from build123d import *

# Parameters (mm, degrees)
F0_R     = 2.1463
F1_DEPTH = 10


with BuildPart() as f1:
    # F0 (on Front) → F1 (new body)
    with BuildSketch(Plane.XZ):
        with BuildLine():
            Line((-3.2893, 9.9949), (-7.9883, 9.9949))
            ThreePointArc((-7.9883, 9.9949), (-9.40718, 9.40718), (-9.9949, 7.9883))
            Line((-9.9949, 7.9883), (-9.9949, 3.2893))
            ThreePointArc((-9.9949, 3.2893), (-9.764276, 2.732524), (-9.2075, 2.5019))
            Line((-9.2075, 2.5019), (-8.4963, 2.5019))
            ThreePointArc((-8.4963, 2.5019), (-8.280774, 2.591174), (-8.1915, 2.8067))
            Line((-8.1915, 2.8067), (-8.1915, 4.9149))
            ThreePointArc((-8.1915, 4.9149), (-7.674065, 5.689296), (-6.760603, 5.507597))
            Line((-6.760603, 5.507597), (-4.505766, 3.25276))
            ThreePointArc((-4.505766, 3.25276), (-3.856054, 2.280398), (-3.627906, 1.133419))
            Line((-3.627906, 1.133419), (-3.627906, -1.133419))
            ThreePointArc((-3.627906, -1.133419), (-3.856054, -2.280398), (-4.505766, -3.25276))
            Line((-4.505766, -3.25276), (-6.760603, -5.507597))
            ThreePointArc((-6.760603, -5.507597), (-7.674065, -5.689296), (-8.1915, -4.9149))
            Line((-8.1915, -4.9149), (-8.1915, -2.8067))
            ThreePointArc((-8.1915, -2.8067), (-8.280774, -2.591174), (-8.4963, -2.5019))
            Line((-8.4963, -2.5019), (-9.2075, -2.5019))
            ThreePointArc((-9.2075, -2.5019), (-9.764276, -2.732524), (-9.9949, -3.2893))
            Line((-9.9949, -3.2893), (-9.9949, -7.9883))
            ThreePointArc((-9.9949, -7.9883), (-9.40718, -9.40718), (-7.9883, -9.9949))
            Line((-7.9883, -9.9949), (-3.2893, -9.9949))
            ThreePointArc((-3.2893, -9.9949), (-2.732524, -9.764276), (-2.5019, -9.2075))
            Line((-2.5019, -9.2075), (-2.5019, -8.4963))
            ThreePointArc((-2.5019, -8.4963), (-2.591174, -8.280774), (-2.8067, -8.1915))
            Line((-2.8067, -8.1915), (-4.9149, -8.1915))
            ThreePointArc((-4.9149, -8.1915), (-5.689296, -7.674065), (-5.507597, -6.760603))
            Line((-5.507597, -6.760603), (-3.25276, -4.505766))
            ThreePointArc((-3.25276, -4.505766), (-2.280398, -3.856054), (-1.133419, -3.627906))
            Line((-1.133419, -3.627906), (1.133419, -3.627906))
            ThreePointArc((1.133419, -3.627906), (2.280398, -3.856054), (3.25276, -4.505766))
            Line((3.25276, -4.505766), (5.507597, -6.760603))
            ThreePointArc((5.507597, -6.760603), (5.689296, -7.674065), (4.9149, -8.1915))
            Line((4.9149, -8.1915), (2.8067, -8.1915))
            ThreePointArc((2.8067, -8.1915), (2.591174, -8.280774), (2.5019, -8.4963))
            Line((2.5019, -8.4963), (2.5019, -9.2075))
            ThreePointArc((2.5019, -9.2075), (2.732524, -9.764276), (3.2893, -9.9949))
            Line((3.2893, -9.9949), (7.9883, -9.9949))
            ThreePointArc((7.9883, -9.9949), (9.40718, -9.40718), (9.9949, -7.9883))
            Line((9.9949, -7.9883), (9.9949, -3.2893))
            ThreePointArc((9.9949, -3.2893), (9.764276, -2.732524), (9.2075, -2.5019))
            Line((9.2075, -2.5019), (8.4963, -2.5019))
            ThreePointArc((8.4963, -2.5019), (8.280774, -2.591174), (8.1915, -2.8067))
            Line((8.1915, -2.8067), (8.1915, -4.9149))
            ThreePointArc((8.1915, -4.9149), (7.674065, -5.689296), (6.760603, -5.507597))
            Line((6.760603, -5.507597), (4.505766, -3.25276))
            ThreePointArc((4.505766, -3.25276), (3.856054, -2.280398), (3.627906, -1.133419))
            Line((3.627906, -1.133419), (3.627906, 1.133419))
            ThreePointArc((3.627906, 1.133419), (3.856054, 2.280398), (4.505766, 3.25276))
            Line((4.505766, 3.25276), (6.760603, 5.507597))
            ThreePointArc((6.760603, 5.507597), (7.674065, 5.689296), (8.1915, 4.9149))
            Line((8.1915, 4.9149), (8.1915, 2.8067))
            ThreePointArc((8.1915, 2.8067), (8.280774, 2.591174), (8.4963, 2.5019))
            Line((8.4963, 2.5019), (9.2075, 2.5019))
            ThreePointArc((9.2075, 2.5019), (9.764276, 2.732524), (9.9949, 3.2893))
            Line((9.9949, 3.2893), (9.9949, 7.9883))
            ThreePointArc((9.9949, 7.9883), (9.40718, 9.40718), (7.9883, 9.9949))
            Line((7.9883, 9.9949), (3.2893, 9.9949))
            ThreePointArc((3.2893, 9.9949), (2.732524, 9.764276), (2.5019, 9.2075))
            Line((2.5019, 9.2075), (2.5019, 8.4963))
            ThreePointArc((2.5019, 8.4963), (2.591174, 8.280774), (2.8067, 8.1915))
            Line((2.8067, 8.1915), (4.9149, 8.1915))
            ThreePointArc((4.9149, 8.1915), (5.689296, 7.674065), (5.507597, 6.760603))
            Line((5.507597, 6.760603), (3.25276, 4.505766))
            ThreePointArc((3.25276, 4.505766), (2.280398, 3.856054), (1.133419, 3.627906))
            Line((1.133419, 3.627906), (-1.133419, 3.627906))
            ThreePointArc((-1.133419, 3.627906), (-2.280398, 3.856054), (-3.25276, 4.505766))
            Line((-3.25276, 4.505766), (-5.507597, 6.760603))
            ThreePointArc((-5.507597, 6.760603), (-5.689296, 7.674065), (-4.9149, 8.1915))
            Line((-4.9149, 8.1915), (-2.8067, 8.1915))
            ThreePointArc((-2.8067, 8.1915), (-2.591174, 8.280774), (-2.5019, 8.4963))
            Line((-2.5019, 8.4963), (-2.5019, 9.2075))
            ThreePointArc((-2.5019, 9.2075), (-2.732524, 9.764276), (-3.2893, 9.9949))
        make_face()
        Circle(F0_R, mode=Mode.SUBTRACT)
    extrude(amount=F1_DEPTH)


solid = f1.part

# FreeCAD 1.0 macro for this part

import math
import FreeCAD as App
import Part
import Sketcher

V = App.Vector
Q = App.Units.Quantity

doc = App.newDocument("Part")
body = doc.addObject("PartDesign::Body", "Body")

sketch1 = body.newObject("Sketcher::SketchObject", "Sketch")
sketch1.AttachmentSupport = (doc.getObject("XZ_Plane"), [""])
sketch1.MapMode = "FlatFace"
sketch1.addGeometry(Part.LineSegment(V(-3.2893, 9.9949, 0), V(-7.9883, 9.9949, 0)), False)
sketch1.addGeometry(Part.ArcOfCircle(Part.Circle(V(-7.988298, 7.988298, 0), V(0, 0, 1), 2.006602), math.radians(90.000046), math.radians(179.999954)), False)
sketch1.addGeometry(Part.LineSegment(V(-9.9949, 7.9883, 0), V(-9.9949, 3.2893, 0)), False)
sketch1.addGeometry(Part.ArcOfCircle(Part.Circle(V(-9.2075, 3.2893, 0), V(0, 0, 1), 0.7874), math.radians(179.99997), math.radians(270.00003)), False)
sketch1.addGeometry(Part.LineSegment(V(-9.2075, 2.5019, 0), V(-8.4963, 2.5019, 0)), False)
sketch1.addGeometry(Part.ArcOfCircle(Part.Circle(V(-8.496301, 2.806701, 0), V(0, 0, 1), 0.304801), math.radians(-89.999906), math.radians(-0.000094)), False)
sketch1.addGeometry(Part.LineSegment(V(-8.1915, 2.8067, 0), V(-8.1915, 4.9149, 0)), False)
sketch1.addGeometry(Part.ArcOfCircle(Part.Circle(V(-7.3533, 4.9149, 0), V(0, 0, 1), 0.8382), math.radians(45.000002), math.radians(180.000002)), False)
sketch1.addGeometry(Part.LineSegment(V(-6.760603, 5.507597, 0), V(-4.505766, 3.25276, 0)), False)
sketch1.addGeometry(Part.ArcOfCircle(Part.Circle(V(-6.625103, 1.133421, 0), V(0, 0, 1), 2.997197), math.radians(-0.00003), math.radians(45.000039)), False)
sketch1.addGeometry(Part.LineSegment(V(-3.627906, 1.133419, 0), V(-3.627906, -1.133419, 0)), False)
sketch1.addGeometry(Part.ArcOfCircle(Part.Circle(V(-6.625103, -1.133421, 0), V(0, 0, 1), 2.997197), math.radians(-45.000039), math.radians(0.00003)), False)
sketch1.addGeometry(Part.LineSegment(V(-4.505766, -3.25276, 0), V(-6.760603, -5.507597, 0)), False)
sketch1.addGeometry(Part.ArcOfCircle(Part.Circle(V(-7.3533, -4.9149, 0), V(0, 0, 1), 0.8382), math.radians(179.999998), math.radians(314.999998)), False)
sketch1.addGeometry(Part.LineSegment(V(-8.1915, -4.9149, 0), V(-8.1915, -2.8067, 0)), False)
sketch1.addGeometry(Part.ArcOfCircle(Part.Circle(V(-8.496301, -2.806701, 0), V(0, 0, 1), 0.304801), math.radians(0.000094), math.radians(89.999906)), False)
sketch1.addGeometry(Part.LineSegment(V(-8.4963, -2.5019, 0), V(-9.2075, -2.5019, 0)), False)
sketch1.addGeometry(Part.ArcOfCircle(Part.Circle(V(-9.2075, -3.2893, 0), V(0, 0, 1), 0.7874), math.radians(89.99997), math.radians(180.00003)), False)
sketch1.addGeometry(Part.LineSegment(V(-9.9949, -3.2893, 0), V(-9.9949, -7.9883, 0)), False)
sketch1.addGeometry(Part.ArcOfCircle(Part.Circle(V(-7.988298, -7.988298, 0), V(0, 0, 1), 2.006602), math.radians(-179.999954), math.radians(-90.000046)), False)
sketch1.addGeometry(Part.LineSegment(V(-7.9883, -9.9949, 0), V(-3.2893, -9.9949, 0)), False)
sketch1.addGeometry(Part.ArcOfCircle(Part.Circle(V(-3.2893, -9.2075, 0), V(0, 0, 1), 0.7874), math.radians(-90.00003), math.radians(0.00003)), False)
sketch1.addGeometry(Part.LineSegment(V(-2.5019, -9.2075, 0), V(-2.5019, -8.4963, 0)), False)
sketch1.addGeometry(Part.ArcOfCircle(Part.Circle(V(-2.806701, -8.496301, 0), V(0, 0, 1), 0.304801), math.radians(0.000094), math.radians(89.999906)), False)
sketch1.addGeometry(Part.LineSegment(V(-2.8067, -8.1915, 0), V(-4.9149, -8.1915, 0)), False)
sketch1.addGeometry(Part.ArcOfCircle(Part.Circle(V(-4.9149, -7.3533, 0), V(0, 0, 1), 0.8382), math.radians(135.000002), math.radians(270.000002)), False)
sketch1.addGeometry(Part.LineSegment(V(-5.507597, -6.760603, 0), V(-3.25276, -4.505766, 0)), False)
sketch1.addGeometry(Part.ArcOfCircle(Part.Circle(V(-1.133421, -6.625103, 0), V(0, 0, 1), 2.997197), math.radians(89.99997), math.radians(135.000039)), False)
sketch1.addGeometry(Part.LineSegment(V(-1.133419, -3.627906, 0), V(1.133419, -3.627906, 0)), False)
sketch1.addGeometry(Part.ArcOfCircle(Part.Circle(V(1.133421, -6.625103, 0), V(0, 0, 1), 2.997197), math.radians(44.999961), math.radians(90.00003)), False)
sketch1.addGeometry(Part.LineSegment(V(3.25276, -4.505766, 0), V(5.507597, -6.760603, 0)), False)
sketch1.addGeometry(Part.ArcOfCircle(Part.Circle(V(4.9149, -7.3533, 0), V(0, 0, 1), 0.8382), math.radians(-90.000002), math.radians(44.999998)), False)
sketch1.addGeometry(Part.LineSegment(V(4.9149, -8.1915, 0), V(2.8067, -8.1915, 0)), False)
sketch1.addGeometry(Part.ArcOfCircle(Part.Circle(V(2.806701, -8.496301, 0), V(0, 0, 1), 0.304801), math.radians(90.000094), math.radians(179.999906)), False)
sketch1.addGeometry(Part.LineSegment(V(2.5019, -8.4963, 0), V(2.5019, -9.2075, 0)), False)
sketch1.addGeometry(Part.ArcOfCircle(Part.Circle(V(3.2893, -9.2075, 0), V(0, 0, 1), 0.7874), math.radians(179.99997), math.radians(270.00003)), False)
sketch1.addGeometry(Part.LineSegment(V(3.2893, -9.9949, 0), V(7.9883, -9.9949, 0)), False)
sketch1.addGeometry(Part.ArcOfCircle(Part.Circle(V(7.988298, -7.988298, 0), V(0, 0, 1), 2.006602), math.radians(-89.999954), math.radians(-0.000046)), False)
sketch1.addGeometry(Part.LineSegment(V(9.9949, -7.9883, 0), V(9.9949, -3.2893, 0)), False)
sketch1.addGeometry(Part.ArcOfCircle(Part.Circle(V(9.2075, -3.2893, 0), V(0, 0, 1), 0.7874), math.radians(-0.00003), math.radians(90.00003)), False)
sketch1.addGeometry(Part.LineSegment(V(9.2075, -2.5019, 0), V(8.4963, -2.5019, 0)), False)
sketch1.addGeometry(Part.ArcOfCircle(Part.Circle(V(8.496301, -2.806701, 0), V(0, 0, 1), 0.304801), math.radians(90.000094), math.radians(179.999906)), False)
sketch1.addGeometry(Part.LineSegment(V(8.1915, -2.8067, 0), V(8.1915, -4.9149, 0)), False)
sketch1.addGeometry(Part.ArcOfCircle(Part.Circle(V(7.3533, -4.9149, 0), V(0, 0, 1), 0.8382), math.radians(-134.999998), math.radians(0.000002)), False)
sketch1.addGeometry(Part.LineSegment(V(6.760603, -5.507597, 0), V(4.505766, -3.25276, 0)), False)
sketch1.addGeometry(Part.ArcOfCircle(Part.Circle(V(6.625103, -1.133421, 0), V(0, 0, 1), 2.997197), math.radians(179.99997), math.radians(225.000039)), False)
sketch1.addGeometry(Part.LineSegment(V(3.627906, -1.133419, 0), V(3.627906, 1.133419, 0)), False)
sketch1.addGeometry(Part.ArcOfCircle(Part.Circle(V(6.625103, 1.133421, 0), V(0, 0, 1), 2.997197), math.radians(134.999961), math.radians(180.00003)), False)
sketch1.addGeometry(Part.LineSegment(V(4.505766, 3.25276, 0), V(6.760603, 5.507597, 0)), False)
sketch1.addGeometry(Part.ArcOfCircle(Part.Circle(V(7.3533, 4.9149, 0), V(0, 0, 1), 0.8382), math.radians(-0.000002), math.radians(134.999998)), False)
sketch1.addGeometry(Part.LineSegment(V(8.1915, 4.9149, 0), V(8.1915, 2.8067, 0)), False)
sketch1.addGeometry(Part.ArcOfCircle(Part.Circle(V(8.496301, 2.806701, 0), V(0, 0, 1), 0.304801), math.radians(-179.999906), math.radians(-90.000094)), False)
sketch1.addGeometry(Part.LineSegment(V(8.4963, 2.5019, 0), V(9.2075, 2.5019, 0)), False)
sketch1.addGeometry(Part.ArcOfCircle(Part.Circle(V(9.2075, 3.2893, 0), V(0, 0, 1), 0.7874), math.radians(-90.00003), math.radians(0.00003)), False)
sketch1.addGeometry(Part.LineSegment(V(9.9949, 3.2893, 0), V(9.9949, 7.9883, 0)), False)
sketch1.addGeometry(Part.ArcOfCircle(Part.Circle(V(7.988298, 7.988298, 0), V(0, 0, 1), 2.006602), math.radians(0.000046), math.radians(89.999954)), False)
sketch1.addGeometry(Part.LineSegment(V(7.9883, 9.9949, 0), V(3.2893, 9.9949, 0)), False)
sketch1.addGeometry(Part.ArcOfCircle(Part.Circle(V(3.2893, 9.2075, 0), V(0, 0, 1), 0.7874), math.radians(89.99997), math.radians(180.00003)), False)
sketch1.addGeometry(Part.LineSegment(V(2.5019, 9.2075, 0), V(2.5019, 8.4963, 0)), False)
sketch1.addGeometry(Part.ArcOfCircle(Part.Circle(V(2.806701, 8.496301, 0), V(0, 0, 1), 0.304801), math.radians(-179.999906), math.radians(-90.000094)), False)
sketch1.addGeometry(Part.LineSegment(V(2.8067, 8.1915, 0), V(4.9149, 8.1915, 0)), False)
sketch1.addGeometry(Part.ArcOfCircle(Part.Circle(V(4.9149, 7.3533, 0), V(0, 0, 1), 0.8382), math.radians(-44.999998), math.radians(90.000002)), False)
sketch1.addGeometry(Part.LineSegment(V(5.507597, 6.760603, 0), V(3.25276, 4.505766, 0)), False)
sketch1.addGeometry(Part.ArcOfCircle(Part.Circle(V(1.133421, 6.625103, 0), V(0, 0, 1), 2.997197), math.radians(-90.00003), math.radians(-44.999961)), False)
sketch1.addGeometry(Part.LineSegment(V(1.133419, 3.627906, 0), V(-1.133419, 3.627906, 0)), False)
sketch1.addGeometry(Part.ArcOfCircle(Part.Circle(V(-1.133421, 6.625103, 0), V(0, 0, 1), 2.997197), math.radians(-135.000039), math.radians(-89.99997)), False)
sketch1.addGeometry(Part.LineSegment(V(-3.25276, 4.505766, 0), V(-5.507597, 6.760603, 0)), False)
sketch1.addGeometry(Part.ArcOfCircle(Part.Circle(V(-4.9149, 7.3533, 0), V(0, 0, 1), 0.8382), math.radians(89.999998), math.radians(224.999998)), False)
sketch1.addGeometry(Part.LineSegment(V(-4.9149, 8.1915, 0), V(-2.8067, 8.1915, 0)), False)
sketch1.addGeometry(Part.ArcOfCircle(Part.Circle(V(-2.806701, 8.496301, 0), V(0, 0, 1), 0.304801), math.radians(-89.999906), math.radians(-0.000094)), False)
sketch1.addGeometry(Part.LineSegment(V(-2.5019, 8.4963, 0), V(-2.5019, 9.2075, 0)), False)
sketch1.addGeometry(Part.ArcOfCircle(Part.Circle(V(-3.2893, 9.2075, 0), V(0, 0, 1), 0.7874), math.radians(-0.00003), math.radians(90.00003)), False)
sketch1.addGeometry(Part.Circle(V(0, 0, 0), V(0, 0, 1), 2.1463), False)
sketch1.addConstraint(Sketcher.Constraint("Tangent", 0, 2, 1, 1))
sketch1.addConstraint(Sketcher.Constraint("Tangent", 1, 2, 2, 1))
sketch1.addConstraint(Sketcher.Constraint("Tangent", 2, 2, 3, 1))
sketch1.addConstraint(Sketcher.Constraint("Tangent", 3, 2, 4, 1))
sketch1.addConstraint(Sketcher.Constraint("Tangent", 4, 2, 5, 1))
sketch1.addConstraint(Sketcher.Constraint("Tangent", 5, 2, 6, 1))
sketch1.addConstraint(Sketcher.Constraint("Tangent", 6, 2, 7, 2))
sketch1.addConstraint(Sketcher.Constraint("Tangent", 7, 1, 8, 1))
sketch1.addConstraint(Sketcher.Constraint("Tangent", 8, 2, 9, 2))
sketch1.addConstraint(Sketcher.Constraint("Tangent", 9, 1, 10, 1))
sketch1.addConstraint(Sketcher.Constraint("Tangent", 10, 2, 11, 2))
sketch1.addConstraint(Sketcher.Constraint("Tangent", 11, 1, 12, 1))
sketch1.addConstraint(Sketcher.Constraint("Tangent", 12, 2, 13, 2))
sketch1.addConstraint(Sketcher.Constraint("Tangent", 13, 1, 14, 1))
sketch1.addConstraint(Sketcher.Constraint("Tangent", 14, 2, 15, 1))
sketch1.addConstraint(Sketcher.Constraint("Tangent", 15, 2, 16, 1))
sketch1.addConstraint(Sketcher.Constraint("Tangent", 16, 2, 17, 1))
sketch1.addConstraint(Sketcher.Constraint("Tangent", 17, 2, 18, 1))
sketch1.addConstraint(Sketcher.Constraint("Tangent", 18, 2, 19, 1))
sketch1.addConstraint(Sketcher.Constraint("Tangent", 19, 2, 20, 1))
sketch1.addConstraint(Sketcher.Constraint("Tangent", 20, 2, 21, 1))
sketch1.addConstraint(Sketcher.Constraint("Tangent", 21, 2, 22, 1))
sketch1.addConstraint(Sketcher.Constraint("Tangent", 22, 2, 23, 1))
sketch1.addConstraint(Sketcher.Constraint("Tangent", 23, 2, 24, 1))
sketch1.addConstraint(Sketcher.Constraint("Tangent", 24, 2, 25, 2))
sketch1.addConstraint(Sketcher.Constraint("Tangent", 25, 1, 26, 1))
sketch1.addConstraint(Sketcher.Constraint("Tangent", 26, 2, 27, 2))
sketch1.addConstraint(Sketcher.Constraint("Tangent", 27, 1, 28, 1))
sketch1.addConstraint(Sketcher.Constraint("Tangent", 28, 2, 29, 2))
sketch1.addConstraint(Sketcher.Constraint("Tangent", 29, 1, 30, 1))
sketch1.addConstraint(Sketcher.Constraint("Tangent", 30, 2, 31, 2))
sketch1.addConstraint(Sketcher.Constraint("Tangent", 31, 1, 32, 1))
sketch1.addConstraint(Sketcher.Constraint("Tangent", 32, 2, 33, 1))
sketch1.addConstraint(Sketcher.Constraint("Tangent", 33, 2, 34, 1))
sketch1.addConstraint(Sketcher.Constraint("Tangent", 34, 2, 35, 1))
sketch1.addConstraint(Sketcher.Constraint("Tangent", 35, 2, 36, 1))
sketch1.addConstraint(Sketcher.Constraint("Tangent", 36, 2, 37, 1))
sketch1.addConstraint(Sketcher.Constraint("Tangent", 37, 2, 38, 1))
sketch1.addConstraint(Sketcher.Constraint("Tangent", 38, 2, 39, 1))
sketch1.addConstraint(Sketcher.Constraint("Tangent", 39, 2, 40, 1))
sketch1.addConstraint(Sketcher.Constraint("Tangent", 40, 2, 41, 1))
sketch1.addConstraint(Sketcher.Constraint("Tangent", 41, 2, 42, 1))
sketch1.addConstraint(Sketcher.Constraint("Tangent", 42, 2, 43, 2))
sketch1.addConstraint(Sketcher.Constraint("Tangent", 43, 1, 44, 1))
sketch1.addConstraint(Sketcher.Constraint("Tangent", 44, 2, 45, 2))
sketch1.addConstraint(Sketcher.Constraint("Tangent", 45, 1, 46, 1))
sketch1.addConstraint(Sketcher.Constraint("Tangent", 46, 2, 47, 2))
sketch1.addConstraint(Sketcher.Constraint("Tangent", 47, 1, 48, 1))
sketch1.addConstraint(Sketcher.Constraint("Tangent", 48, 2, 49, 2))
sketch1.addConstraint(Sketcher.Constraint("Tangent", 49, 1, 50, 1))
sketch1.addConstraint(Sketcher.Constraint("Tangent", 50, 2, 51, 1))
sketch1.addConstraint(Sketcher.Constraint("Tangent", 51, 2, 52, 1))
sketch1.addConstraint(Sketcher.Constraint("Tangent", 52, 2, 53, 1))
sketch1.addConstraint(Sketcher.Constraint("Tangent", 53, 2, 54, 1))
sketch1.addConstraint(Sketcher.Constraint("Tangent", 54, 2, 55, 1))
sketch1.addConstraint(Sketcher.Constraint("Tangent", 55, 2, 56, 1))
sketch1.addConstraint(Sketcher.Constraint("Tangent", 56, 2, 57, 1))
sketch1.addConstraint(Sketcher.Constraint("Tangent", 57, 2, 58, 1))
sketch1.addConstraint(Sketcher.Constraint("Tangent", 58, 2, 59, 1))
sketch1.addConstraint(Sketcher.Constraint("Tangent", 59, 2, 60, 1))
sketch1.addConstraint(Sketcher.Constraint("Tangent", 60, 2, 61, 2))
sketch1.addConstraint(Sketcher.Constraint("Tangent", 61, 1, 62, 1))
sketch1.addConstraint(Sketcher.Constraint("Tangent", 62, 2, 63, 2))
sketch1.addConstraint(Sketcher.Constraint("Tangent", 63, 1, 64, 1))
sketch1.addConstraint(Sketcher.Constraint("Tangent", 64, 2, 65, 2))
sketch1.addConstraint(Sketcher.Constraint("Tangent", 65, 1, 66, 1))
sketch1.addConstraint(Sketcher.Constraint("Tangent", 66, 2, 67, 2))
sketch1.addConstraint(Sketcher.Constraint("Tangent", 67, 1, 68, 1))
sketch1.addConstraint(Sketcher.Constraint("Tangent", 68, 2, 69, 1))
sketch1.addConstraint(Sketcher.Constraint("Tangent", 69, 2, 70, 1))
sketch1.addConstraint(Sketcher.Constraint("Tangent", 70, 2, 71, 1))
sketch1.addConstraint(Sketcher.Constraint("Tangent", 71, 2, 0, 1))
sketch1.addConstraint(Sketcher.Constraint("Horizontal", 0))
sketch1.addConstraint(Sketcher.Constraint("Vertical", 2))
sketch1.addConstraint(Sketcher.Constraint("Horizontal", 4))
sketch1.addConstraint(Sketcher.Constraint("Vertical", 6))
sketch1.addConstraint(Sketcher.Constraint("Vertical", 10))
sketch1.addConstraint(Sketcher.Constraint("Vertical", 14))
sketch1.addConstraint(Sketcher.Constraint("Horizontal", 16))
sketch1.addConstraint(Sketcher.Constraint("Vertical", 18))
sketch1.addConstraint(Sketcher.Constraint("Horizontal", 20))
sketch1.addConstraint(Sketcher.Constraint("Vertical", 22))
sketch1.addConstraint(Sketcher.Constraint("Horizontal", 24))
sketch1.addConstraint(Sketcher.Constraint("Horizontal", 28))
sketch1.addConstraint(Sketcher.Constraint("Horizontal", 32))
sketch1.addConstraint(Sketcher.Constraint("Vertical", 34))
sketch1.addConstraint(Sketcher.Constraint("Horizontal", 36))
sketch1.addConstraint(Sketcher.Constraint("Vertical", 38))
sketch1.addConstraint(Sketcher.Constraint("Horizontal", 40))
sketch1.addConstraint(Sketcher.Constraint("Vertical", 42))
sketch1.addConstraint(Sketcher.Constraint("Vertical", 46))
sketch1.addConstraint(Sketcher.Constraint("Vertical", 50))
sketch1.addConstraint(Sketcher.Constraint("Horizontal", 52))
sketch1.addConstraint(Sketcher.Constraint("Vertical", 54))
sketch1.addConstraint(Sketcher.Constraint("Horizontal", 56))
sketch1.addConstraint(Sketcher.Constraint("Vertical", 58))
sketch1.addConstraint(Sketcher.Constraint("Horizontal", 60))
sketch1.addConstraint(Sketcher.Constraint("Horizontal", 64))
sketch1.addConstraint(Sketcher.Constraint("Horizontal", 68))
sketch1.addConstraint(Sketcher.Constraint("Vertical", 70))
sketch1.addConstraint(Sketcher.Constraint("Coincident", 72, 3, -1, 1))
sketch1.addConstraint(Sketcher.Constraint("Equal", 9, 11))
sketch1.addConstraint(Sketcher.Constraint("Equal", 7, 13))
sketch1.addConstraint(Sketcher.Constraint("Equal", 5, 15))
sketch1.addConstraint(Sketcher.Constraint("Equal", 3, 17))
sketch1.addConstraint(Sketcher.Constraint("Equal", 1, 19))
sketch1.addConstraint(Sketcher.Constraint("Equal", 17, 21))
sketch1.addConstraint(Sketcher.Constraint("Equal", 15, 23))
sketch1.addConstraint(Sketcher.Constraint("Equal", 13, 25))
sketch1.addConstraint(Sketcher.Constraint("Equal", 11, 27))
sketch1.addConstraint(Sketcher.Constraint("Equal", 27, 29))
sketch1.addConstraint(Sketcher.Constraint("Equal", 25, 31))
sketch1.addConstraint(Sketcher.Constraint("Equal", 23, 33))
sketch1.addConstraint(Sketcher.Constraint("Equal", 21, 35))
sketch1.addConstraint(Sketcher.Constraint("Equal", 19, 37))
sketch1.addConstraint(Sketcher.Constraint("Equal", 35, 39))
sketch1.addConstraint(Sketcher.Constraint("Equal", 33, 41))
sketch1.addConstraint(Sketcher.Constraint("Equal", 31, 43))
sketch1.addConstraint(Sketcher.Constraint("Equal", 29, 45))
sketch1.addConstraint(Sketcher.Constraint("Equal", 45, 47))
sketch1.addConstraint(Sketcher.Constraint("Equal", 43, 49))
sketch1.addConstraint(Sketcher.Constraint("Equal", 41, 51))
sketch1.addConstraint(Sketcher.Constraint("Equal", 39, 53))
sketch1.addConstraint(Sketcher.Constraint("Equal", 37, 55))
sketch1.addConstraint(Sketcher.Constraint("Equal", 53, 57))
sketch1.addConstraint(Sketcher.Constraint("Equal", 51, 59))
sketch1.addConstraint(Sketcher.Constraint("Equal", 49, 61))
sketch1.addConstraint(Sketcher.Constraint("Equal", 47, 63))
sketch1.addConstraint(Sketcher.Constraint("Equal", 63, 65))
sketch1.addConstraint(Sketcher.Constraint("Equal", 61, 67))
sketch1.addConstraint(Sketcher.Constraint("Equal", 59, 69))
sketch1.addConstraint(Sketcher.Constraint("Equal", 57, 71))
sketch1.addConstraint(Sketcher.Constraint("Symmetric", 1, 3, 37, 3, -1, 1))
sketch1.addConstraint(Sketcher.Constraint("Symmetric", 5, 3, 41, 3, -1, 1))
sketch1.addConstraint(Sketcher.Constraint("Symmetric", 9, 3, 45, 3, -1, 1))
sketch1.addConstraint(Sketcher.Constraint("Symmetric", 13, 3, 49, 3, -1, 1))
sketch1.addConstraint(Sketcher.Constraint("Symmetric", 17, 3, 53, 3, -1, 1))
sketch1.addConstraint(Sketcher.Constraint("Symmetric", 21, 3, 57, 3, -1, 1))
sketch1.addConstraint(Sketcher.Constraint("Symmetric", 25, 3, 61, 3, -1, 1))
sketch1.addConstraint(Sketcher.Constraint("Symmetric", 27, 3, 63, 3, -1, 1))
sketch1.addConstraint(Sketcher.Constraint("Symmetric", 31, 3, 67, 3, -1, 1))
sketch1.addConstraint(Sketcher.Constraint("Symmetric", 25, 3, 31, 3, -2))
sketch1.addConstraint(Sketcher.Constraint("Symmetric", 21, 3, 35, 3, -2))
sketch1.addConstraint(Sketcher.Constraint("Symmetric", 17, 3, 39, 3, -2))
sketch1.addConstraint(Sketcher.Constraint("Symmetric", 13, 3, 43, 3, -2))
sketch1.addConstraint(Sketcher.Constraint("Symmetric", 8, 2, 47, 1, -2))
sketch1.addConstraint(Sketcher.Constraint("Perpendicular", 8, 12))
sketch1.addConstraint(Sketcher.Constraint("Parallel", 12, 26))
sketch1.addConstraint(Sketcher.Constraint("Perpendicular", 26, 30))
sketch1.addConstraint(Sketcher.Constraint("Perpendicular", 44, 48))
sketch1.addConstraint(Sketcher.Constraint("Perpendicular", 62, 66))
sketch1.addConstraint(Sketcher.Constraint("Vertical", 23, 3, 69, 3))
sketch1.addConstraint(Sketcher.Constraint("Equal", 56, 2))
sketch1.addConstraint(Sketcher.Constraint("Equal", 68, 6))
sketch1.addConstraint(Sketcher.Constraint("Equal", 64, 10))
sketch1.addConstraint(Sketcher.Constraint("Equal", 52, 22))
sketch1.addConstraint(Sketcher.Constraint("Equal", 12, 26))
sketch1.addConstraint(Sketcher.Constraint("Diameter", 72, Q("0.169 in")))
sketch1.addConstraint(Sketcher.Constraint("Radius", 1, Q("0.0790001 in")))
sketch1.addConstraint(Sketcher.Constraint("Radius", 3, Q("0.031 in")))
sketch1.addConstraint(Sketcher.Constraint("Radius", 5, Q("0.012 in")))
sketch1.addConstraint(Sketcher.Constraint("Radius", 7, Q("0.033 in")))
sketch1.addConstraint(Sketcher.Constraint("Radius", 9, Q("0.1179999 in")))
sketch1.addConstraint(Sketcher.Constraint("DistanceX", 0, 2, 0, 1, Q("0.185 in")))
sketch1.addConstraint(Sketcher.Constraint("DistanceX", 4, 1, 4, 2, Q("0.028 in")))
sketch1.addConstraint(Sketcher.Constraint("DistanceX", 24, 2, 24, 1, Q("0.083 in")))
sketch1.addConstraint(Sketcher.Constraint("DistanceX", 1, 3, -1, 1, Q("0.3144999 in")))
sketch1.addConstraint(Sketcher.Constraint("Distance", 8, Q("3.188821 mm")))
pad1 = body.newObject("PartDesign::Pad", "Pad")
pad1.Profile = sketch1
pad1.Length = 10

doc.recompute()
